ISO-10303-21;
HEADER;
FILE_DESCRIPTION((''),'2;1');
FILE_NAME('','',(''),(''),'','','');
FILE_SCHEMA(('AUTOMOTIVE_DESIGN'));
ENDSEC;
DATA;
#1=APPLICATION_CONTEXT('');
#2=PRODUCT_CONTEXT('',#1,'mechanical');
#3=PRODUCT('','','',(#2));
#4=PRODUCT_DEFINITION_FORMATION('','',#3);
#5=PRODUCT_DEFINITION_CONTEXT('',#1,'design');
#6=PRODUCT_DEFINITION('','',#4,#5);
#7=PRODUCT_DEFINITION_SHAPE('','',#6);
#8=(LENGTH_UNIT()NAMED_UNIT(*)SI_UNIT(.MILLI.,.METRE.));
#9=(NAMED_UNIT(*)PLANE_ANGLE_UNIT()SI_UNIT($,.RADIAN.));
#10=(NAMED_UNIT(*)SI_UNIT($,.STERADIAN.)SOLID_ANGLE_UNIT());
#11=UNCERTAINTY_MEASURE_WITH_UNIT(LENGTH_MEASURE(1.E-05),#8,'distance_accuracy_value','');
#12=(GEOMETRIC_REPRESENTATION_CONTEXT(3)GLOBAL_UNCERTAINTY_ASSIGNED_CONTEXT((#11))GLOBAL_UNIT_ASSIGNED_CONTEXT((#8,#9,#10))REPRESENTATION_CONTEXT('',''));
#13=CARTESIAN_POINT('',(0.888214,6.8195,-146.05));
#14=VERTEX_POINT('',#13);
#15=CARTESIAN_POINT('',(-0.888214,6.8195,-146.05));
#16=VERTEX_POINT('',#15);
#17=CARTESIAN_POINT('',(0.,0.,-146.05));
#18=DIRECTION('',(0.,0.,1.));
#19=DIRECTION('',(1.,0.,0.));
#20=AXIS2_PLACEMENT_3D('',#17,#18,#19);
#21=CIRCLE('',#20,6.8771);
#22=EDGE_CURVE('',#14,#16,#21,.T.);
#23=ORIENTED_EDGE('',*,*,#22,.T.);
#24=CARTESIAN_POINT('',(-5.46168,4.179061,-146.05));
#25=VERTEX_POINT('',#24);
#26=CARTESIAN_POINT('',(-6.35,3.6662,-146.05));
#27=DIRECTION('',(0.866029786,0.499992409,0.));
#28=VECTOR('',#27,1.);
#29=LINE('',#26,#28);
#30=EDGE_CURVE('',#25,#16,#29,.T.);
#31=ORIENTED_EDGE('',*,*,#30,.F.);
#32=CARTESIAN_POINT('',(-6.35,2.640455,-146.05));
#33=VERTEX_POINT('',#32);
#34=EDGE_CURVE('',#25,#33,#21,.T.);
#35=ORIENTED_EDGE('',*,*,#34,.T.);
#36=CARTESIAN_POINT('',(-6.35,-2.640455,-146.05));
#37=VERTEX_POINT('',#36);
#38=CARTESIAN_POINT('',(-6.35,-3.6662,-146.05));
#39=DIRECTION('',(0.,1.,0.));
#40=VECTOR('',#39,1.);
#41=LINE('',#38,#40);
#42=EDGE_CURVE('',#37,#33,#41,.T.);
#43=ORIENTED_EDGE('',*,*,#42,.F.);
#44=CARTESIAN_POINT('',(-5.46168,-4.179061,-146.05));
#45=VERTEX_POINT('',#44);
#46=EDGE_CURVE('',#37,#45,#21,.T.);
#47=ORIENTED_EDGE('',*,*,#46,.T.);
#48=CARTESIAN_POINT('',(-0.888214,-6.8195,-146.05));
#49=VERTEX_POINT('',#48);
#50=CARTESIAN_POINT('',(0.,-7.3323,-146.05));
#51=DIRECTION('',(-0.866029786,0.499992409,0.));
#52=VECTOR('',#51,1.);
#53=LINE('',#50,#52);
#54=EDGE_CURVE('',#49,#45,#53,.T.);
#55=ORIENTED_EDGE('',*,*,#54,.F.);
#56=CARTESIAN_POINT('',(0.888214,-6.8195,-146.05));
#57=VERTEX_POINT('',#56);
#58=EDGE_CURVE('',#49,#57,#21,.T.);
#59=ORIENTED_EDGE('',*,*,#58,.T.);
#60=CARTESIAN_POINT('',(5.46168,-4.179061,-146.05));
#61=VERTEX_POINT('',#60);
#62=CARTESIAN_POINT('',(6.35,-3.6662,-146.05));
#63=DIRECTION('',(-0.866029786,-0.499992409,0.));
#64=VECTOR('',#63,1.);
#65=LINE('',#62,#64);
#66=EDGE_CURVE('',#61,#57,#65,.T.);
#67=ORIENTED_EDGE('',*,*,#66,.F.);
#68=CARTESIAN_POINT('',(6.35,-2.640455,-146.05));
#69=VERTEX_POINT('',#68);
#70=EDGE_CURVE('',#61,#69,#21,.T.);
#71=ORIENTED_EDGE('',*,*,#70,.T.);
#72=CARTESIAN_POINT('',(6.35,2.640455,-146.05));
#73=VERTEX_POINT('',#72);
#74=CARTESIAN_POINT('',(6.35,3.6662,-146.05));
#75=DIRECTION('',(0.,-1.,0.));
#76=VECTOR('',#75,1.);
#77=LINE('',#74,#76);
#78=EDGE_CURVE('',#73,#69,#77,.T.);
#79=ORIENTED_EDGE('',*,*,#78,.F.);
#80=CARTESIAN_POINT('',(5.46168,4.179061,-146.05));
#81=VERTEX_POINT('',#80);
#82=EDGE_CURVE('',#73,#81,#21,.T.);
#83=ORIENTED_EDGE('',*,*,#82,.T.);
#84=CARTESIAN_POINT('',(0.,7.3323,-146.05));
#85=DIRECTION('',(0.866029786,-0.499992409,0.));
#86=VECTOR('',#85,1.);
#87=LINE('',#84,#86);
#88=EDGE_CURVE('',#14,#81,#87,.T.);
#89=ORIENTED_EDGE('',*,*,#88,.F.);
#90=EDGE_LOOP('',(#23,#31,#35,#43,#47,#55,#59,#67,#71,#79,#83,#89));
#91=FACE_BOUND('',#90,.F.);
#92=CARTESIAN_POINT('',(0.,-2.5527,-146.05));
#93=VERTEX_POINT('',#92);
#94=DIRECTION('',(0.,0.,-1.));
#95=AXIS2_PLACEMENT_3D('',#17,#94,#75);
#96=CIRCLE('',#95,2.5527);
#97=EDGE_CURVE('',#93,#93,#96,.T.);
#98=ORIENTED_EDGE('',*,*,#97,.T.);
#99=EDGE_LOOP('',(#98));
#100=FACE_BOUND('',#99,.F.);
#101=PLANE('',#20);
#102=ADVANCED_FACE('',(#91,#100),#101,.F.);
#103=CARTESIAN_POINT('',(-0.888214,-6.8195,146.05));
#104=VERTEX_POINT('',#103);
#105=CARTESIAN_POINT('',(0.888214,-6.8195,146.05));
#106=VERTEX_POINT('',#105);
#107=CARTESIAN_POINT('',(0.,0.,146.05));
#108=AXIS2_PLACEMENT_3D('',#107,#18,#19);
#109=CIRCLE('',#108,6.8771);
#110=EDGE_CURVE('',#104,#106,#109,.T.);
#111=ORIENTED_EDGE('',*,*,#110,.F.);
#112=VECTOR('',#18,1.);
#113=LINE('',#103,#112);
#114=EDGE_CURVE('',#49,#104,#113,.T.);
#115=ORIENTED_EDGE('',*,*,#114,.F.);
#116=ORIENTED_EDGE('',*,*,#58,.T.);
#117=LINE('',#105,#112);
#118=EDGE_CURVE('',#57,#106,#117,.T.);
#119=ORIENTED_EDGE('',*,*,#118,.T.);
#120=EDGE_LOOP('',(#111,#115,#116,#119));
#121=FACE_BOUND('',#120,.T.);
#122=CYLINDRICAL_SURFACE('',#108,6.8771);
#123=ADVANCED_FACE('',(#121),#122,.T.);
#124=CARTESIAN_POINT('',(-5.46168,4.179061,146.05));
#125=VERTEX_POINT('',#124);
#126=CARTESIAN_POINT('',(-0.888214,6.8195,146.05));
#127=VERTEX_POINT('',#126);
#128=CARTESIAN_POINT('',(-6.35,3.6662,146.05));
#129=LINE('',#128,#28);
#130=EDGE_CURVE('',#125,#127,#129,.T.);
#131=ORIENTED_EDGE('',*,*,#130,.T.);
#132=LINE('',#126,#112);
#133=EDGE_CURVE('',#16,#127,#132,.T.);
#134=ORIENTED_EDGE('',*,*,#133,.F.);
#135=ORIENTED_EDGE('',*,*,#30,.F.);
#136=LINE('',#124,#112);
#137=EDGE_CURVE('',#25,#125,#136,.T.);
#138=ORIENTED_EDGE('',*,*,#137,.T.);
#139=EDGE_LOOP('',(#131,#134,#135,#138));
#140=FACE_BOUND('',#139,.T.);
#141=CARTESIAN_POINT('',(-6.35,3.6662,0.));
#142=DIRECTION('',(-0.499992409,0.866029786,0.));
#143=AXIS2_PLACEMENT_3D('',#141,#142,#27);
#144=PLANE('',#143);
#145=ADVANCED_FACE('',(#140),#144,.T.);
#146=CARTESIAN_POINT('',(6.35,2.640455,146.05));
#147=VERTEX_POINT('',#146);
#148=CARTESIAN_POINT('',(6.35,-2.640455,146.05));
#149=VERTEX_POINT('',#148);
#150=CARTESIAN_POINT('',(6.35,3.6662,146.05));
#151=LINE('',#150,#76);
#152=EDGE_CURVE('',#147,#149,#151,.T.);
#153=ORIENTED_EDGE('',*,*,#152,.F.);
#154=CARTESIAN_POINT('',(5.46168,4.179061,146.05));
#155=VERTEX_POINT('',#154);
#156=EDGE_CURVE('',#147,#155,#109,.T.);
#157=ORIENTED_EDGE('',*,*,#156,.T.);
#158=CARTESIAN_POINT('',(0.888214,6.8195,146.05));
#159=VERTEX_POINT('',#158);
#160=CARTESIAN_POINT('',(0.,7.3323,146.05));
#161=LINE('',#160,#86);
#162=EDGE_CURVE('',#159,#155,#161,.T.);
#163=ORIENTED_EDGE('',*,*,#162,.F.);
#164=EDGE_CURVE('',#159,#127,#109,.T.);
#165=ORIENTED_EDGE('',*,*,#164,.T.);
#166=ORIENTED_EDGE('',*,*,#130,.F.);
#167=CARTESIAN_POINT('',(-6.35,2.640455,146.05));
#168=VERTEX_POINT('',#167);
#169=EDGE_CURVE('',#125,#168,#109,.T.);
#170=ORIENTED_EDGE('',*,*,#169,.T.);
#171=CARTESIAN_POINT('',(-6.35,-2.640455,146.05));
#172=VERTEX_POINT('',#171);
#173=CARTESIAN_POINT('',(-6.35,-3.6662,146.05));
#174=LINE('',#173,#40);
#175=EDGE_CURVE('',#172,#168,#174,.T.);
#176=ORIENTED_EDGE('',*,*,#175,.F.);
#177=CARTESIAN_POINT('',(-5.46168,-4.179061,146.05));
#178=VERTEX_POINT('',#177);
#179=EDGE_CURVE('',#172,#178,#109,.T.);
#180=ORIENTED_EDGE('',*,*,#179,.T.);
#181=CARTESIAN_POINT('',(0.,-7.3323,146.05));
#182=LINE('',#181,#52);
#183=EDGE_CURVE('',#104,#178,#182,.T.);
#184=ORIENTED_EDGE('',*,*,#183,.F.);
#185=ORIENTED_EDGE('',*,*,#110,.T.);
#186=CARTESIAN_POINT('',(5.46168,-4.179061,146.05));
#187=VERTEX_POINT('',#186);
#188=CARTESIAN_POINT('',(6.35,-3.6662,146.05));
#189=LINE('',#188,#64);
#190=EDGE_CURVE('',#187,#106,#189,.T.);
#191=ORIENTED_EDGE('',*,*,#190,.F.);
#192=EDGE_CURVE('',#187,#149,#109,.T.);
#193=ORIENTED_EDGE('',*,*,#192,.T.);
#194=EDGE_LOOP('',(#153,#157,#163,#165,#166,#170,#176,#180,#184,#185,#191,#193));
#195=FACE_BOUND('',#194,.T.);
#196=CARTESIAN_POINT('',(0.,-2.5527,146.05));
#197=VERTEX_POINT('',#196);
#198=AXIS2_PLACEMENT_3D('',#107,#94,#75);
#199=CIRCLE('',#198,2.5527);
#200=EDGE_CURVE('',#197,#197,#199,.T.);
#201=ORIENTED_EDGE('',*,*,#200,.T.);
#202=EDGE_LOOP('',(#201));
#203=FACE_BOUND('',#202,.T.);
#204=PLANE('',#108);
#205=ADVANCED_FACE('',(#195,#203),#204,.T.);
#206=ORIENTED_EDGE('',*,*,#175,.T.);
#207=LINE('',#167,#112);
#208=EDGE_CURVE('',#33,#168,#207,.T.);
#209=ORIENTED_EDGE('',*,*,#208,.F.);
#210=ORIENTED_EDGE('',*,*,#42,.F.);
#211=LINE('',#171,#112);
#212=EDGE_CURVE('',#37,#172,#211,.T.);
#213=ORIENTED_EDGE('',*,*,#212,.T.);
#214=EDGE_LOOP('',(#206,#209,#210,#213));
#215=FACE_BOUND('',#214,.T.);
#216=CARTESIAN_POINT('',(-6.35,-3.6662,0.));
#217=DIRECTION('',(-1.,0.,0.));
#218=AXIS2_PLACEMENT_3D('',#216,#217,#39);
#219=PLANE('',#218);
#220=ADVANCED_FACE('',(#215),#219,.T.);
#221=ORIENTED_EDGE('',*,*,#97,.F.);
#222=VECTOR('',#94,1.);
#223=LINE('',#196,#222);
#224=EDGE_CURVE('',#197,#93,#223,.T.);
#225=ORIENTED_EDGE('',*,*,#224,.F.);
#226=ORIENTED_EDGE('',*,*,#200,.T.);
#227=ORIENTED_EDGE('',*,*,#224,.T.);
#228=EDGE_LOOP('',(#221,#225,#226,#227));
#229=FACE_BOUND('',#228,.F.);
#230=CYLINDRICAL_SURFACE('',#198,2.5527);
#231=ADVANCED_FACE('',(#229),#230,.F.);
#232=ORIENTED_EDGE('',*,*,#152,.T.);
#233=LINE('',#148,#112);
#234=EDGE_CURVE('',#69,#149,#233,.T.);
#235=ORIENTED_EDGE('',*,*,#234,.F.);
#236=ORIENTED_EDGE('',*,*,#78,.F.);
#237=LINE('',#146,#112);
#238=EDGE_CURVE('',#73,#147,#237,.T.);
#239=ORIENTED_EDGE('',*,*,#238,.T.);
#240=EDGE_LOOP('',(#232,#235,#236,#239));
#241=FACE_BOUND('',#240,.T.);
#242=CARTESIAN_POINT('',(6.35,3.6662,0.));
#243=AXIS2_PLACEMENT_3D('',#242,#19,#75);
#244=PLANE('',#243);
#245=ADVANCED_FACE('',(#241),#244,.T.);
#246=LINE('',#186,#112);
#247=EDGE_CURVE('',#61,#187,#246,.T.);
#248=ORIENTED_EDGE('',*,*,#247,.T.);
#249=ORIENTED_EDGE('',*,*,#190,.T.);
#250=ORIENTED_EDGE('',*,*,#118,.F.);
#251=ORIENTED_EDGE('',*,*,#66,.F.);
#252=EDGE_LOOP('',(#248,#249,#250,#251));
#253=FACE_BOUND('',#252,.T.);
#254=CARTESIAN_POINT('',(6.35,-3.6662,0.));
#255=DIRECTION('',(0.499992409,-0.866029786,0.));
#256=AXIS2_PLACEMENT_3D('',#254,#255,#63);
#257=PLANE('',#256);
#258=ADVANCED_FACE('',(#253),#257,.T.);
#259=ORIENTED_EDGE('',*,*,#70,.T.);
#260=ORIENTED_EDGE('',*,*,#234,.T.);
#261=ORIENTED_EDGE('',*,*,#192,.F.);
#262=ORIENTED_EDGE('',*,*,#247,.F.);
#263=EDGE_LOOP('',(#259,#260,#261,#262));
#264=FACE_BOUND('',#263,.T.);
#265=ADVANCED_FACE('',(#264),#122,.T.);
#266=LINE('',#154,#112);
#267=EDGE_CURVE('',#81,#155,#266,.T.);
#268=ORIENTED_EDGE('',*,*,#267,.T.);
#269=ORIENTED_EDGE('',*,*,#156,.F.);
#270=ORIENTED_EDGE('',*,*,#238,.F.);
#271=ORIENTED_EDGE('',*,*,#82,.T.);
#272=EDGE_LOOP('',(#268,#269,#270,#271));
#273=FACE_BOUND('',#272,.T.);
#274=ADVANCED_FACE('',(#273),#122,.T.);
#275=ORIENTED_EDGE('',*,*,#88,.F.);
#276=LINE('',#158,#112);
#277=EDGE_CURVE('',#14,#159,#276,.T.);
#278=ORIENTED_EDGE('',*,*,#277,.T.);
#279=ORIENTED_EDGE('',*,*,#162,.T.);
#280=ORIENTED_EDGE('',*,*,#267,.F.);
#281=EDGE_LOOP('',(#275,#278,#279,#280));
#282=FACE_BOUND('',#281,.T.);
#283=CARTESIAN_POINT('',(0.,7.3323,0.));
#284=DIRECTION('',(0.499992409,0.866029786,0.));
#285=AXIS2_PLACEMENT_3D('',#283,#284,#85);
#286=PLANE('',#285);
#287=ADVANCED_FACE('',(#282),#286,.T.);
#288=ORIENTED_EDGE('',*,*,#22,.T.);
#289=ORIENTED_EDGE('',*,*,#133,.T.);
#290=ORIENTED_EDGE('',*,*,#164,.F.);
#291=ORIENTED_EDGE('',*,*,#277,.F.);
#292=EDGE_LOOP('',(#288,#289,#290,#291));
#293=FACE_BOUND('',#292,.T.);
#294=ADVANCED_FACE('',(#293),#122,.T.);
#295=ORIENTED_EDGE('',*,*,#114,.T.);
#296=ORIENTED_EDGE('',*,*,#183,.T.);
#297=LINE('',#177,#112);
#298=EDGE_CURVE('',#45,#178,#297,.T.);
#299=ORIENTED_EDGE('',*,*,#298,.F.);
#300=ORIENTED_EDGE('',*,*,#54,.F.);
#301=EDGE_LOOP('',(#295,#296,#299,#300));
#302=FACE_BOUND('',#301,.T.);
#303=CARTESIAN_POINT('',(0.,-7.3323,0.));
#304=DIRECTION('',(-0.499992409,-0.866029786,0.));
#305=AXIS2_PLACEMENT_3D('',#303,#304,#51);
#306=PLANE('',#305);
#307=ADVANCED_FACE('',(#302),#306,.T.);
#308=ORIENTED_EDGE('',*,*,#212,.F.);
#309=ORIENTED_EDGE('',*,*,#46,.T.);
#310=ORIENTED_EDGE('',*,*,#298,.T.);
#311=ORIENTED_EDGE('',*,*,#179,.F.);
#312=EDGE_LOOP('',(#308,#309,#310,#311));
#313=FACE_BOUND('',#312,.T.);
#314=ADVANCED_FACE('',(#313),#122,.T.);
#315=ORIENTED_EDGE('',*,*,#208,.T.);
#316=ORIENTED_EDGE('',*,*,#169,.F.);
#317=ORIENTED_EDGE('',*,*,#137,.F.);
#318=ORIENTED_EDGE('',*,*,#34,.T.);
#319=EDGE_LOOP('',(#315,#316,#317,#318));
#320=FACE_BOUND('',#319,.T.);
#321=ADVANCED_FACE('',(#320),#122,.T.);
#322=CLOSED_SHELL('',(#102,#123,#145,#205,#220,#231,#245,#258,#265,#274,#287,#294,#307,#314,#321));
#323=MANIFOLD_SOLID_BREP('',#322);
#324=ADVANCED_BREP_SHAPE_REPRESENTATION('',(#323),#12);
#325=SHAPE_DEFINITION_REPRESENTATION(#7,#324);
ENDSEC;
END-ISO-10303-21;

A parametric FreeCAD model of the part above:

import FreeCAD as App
import Part
import Sketcher

V = App.Vector
Q = App.Units.Quantity

doc = App.newDocument("Part")
params = doc.addObject("Spreadsheet::Sheet", "Params")
for row, (alias, value) in enumerate([
    ("pad1_length", "11.5 in"),
    ("sketch2_diameter", "0.201 in"),
    ("hole_diameter", "0.201 in"),
    ("sketch3_diameter", "0.7 in"),
], start=1):
    params.set(f"A{row}", alias)
    params.set(f"B{row}", "=" + value)
    params.setAlias(f"B{row}", alias)

body = doc.addObject("PartDesign::Body", "Body")

# Sketch on XY plane
sketch1 = doc.addObject("Sketcher::SketchObject", "Sketch")
body.addObject(sketch1)
sketch1.AttachmentSupport = (doc.XY_Plane, [""])
sketch1.MapMode = "FlatFace"
sketch1.addGeometry([
    Part.LineSegment(V(-6, 4, 0), V(-6, -4, 0)),  # 0
    Part.LineSegment(V(-6, -4, 0), V(0, -7, 0)),  # 1
    Part.LineSegment(V(0, -7, 0), V(6, -4, 0)),  # 2
    Part.LineSegment(V(6, -4, 0), V(6, 4, 0)),  # 3
    Part.LineSegment(V(6, 4, 0), V(0, 7, 0)),  # 4
    Part.LineSegment(V(0, 7, 0), V(-6, 4, 0)),  # 5
], False)
sketch1.addConstraint([
    Sketcher.Constraint("Coincident", 0, 2, 1, 1),
    Sketcher.Constraint("Coincident", 1, 2, 2, 1),
    Sketcher.Constraint("Coincident", 2, 2, 3, 1),
    Sketcher.Constraint("Coincident", 3, 2, 4, 1),
    Sketcher.Constraint("Coincident", 4, 2, 5, 1),
    Sketcher.Constraint("Coincident", 5, 2, 0, 1),
    Sketcher.Constraint("Vertical", 0),
    Sketcher.Constraint("Vertical", 3),
    Sketcher.Constraint("Symmetric", 0, 2, 3, 2, -1, 1),
    Sketcher.Constraint("Symmetric", 1, 2, 4, 2, -1, 1),
    Sketcher.Constraint("PointOnObject", 1, 2, -2),
    Sketcher.Constraint("Parallel", 2, 5),
    Sketcher.Constraint("Horizontal", 0, 2, 2, 2),
    Sketcher.Constraint("DistanceX", 0, 2, 2, 2, Q("0.5 in")),
    Sketcher.Constraint("Angle", 1, Q("-29.9995 deg")),
    Sketcher.Constraint("DistanceY", 1, 2, 3, 2, Q("0.433 in")),
])
pad1 = doc.addObject("PartDesign::Pad", "Pad")
body.addObject(pad1)
pad1.Profile = sketch1
pad1.setExpression("Length", "Params.pad1_length")
pad1.Midplane = True

# Sketch on XY plane
sketch2 = doc.addObject("Sketcher::SketchObject", "Sketch001")
body.addObject(sketch2)
sketch2.AttachmentSupport = (doc.XY_Plane, [""])
sketch2.MapMode = "FlatFace"
sketch2.AttachmentOffset = App.Placement(V(0, 0, 5.75 * 25.4), App.Rotation())
sketch2.addGeometry(Part.Circle(V(0, 0, 0), V(0, 0, 1), 2.6), False)
sketch2.addConstraint([
    Sketcher.Constraint("Coincident", 0, 3, -1, 1),
    Sketcher.Constraint("Diameter", 0, Q("0.201 in")),
])
sketch2.setExpression("Constraints[1]", "Params.sketch2_diameter")
doc.recompute()
hole = doc.addObject("PartDesign::Hole", "Hole")
body.addObject(hole)
hole.Profile = sketch2
hole.ThreadType = "None"
hole.setExpression("Diameter", "Params.hole_diameter")
hole.DepthType = "ThroughAll"

# Sketch on XY plane
sketch3 = doc.addObject("Sketcher::SketchObject", "Sketch002")
body.addObject(sketch3)
sketch3.AttachmentSupport = (doc.XY_Plane, [""])
sketch3.MapMode = "FlatFace"
sketch3.AttachmentOffset = App.Placement(V(0, 0, 5.75 * 25.4), App.Rotation())
sketch3.addGeometry([
    Part.Circle(V(0, 0, 0), V(0, 0, 1), 9),
    Part.Circle(V(0, 0, 0), V(0, 0, 1), 7),
], False)
sketch3.addConstraint([
    Sketcher.Constraint("Coincident", 0, 3, -1, 1),
    Sketcher.Constraint("Coincident", 1, 3, -1, 1),
    Sketcher.Constraint("Diameter", 0, Q("0.7 in")),
    Sketcher.Constraint("Diameter", 1, Q("0.5415 in")),
])
sketch3.setExpression("Constraints[2]", "Params.sketch3_diameter")
pocket1 = doc.addObject("PartDesign::Pocket", "Pocket")
body.addObject(pocket1)
pocket1.Profile = sketch3
pocket1.Type = "ThroughAll"

doc.recompute()
